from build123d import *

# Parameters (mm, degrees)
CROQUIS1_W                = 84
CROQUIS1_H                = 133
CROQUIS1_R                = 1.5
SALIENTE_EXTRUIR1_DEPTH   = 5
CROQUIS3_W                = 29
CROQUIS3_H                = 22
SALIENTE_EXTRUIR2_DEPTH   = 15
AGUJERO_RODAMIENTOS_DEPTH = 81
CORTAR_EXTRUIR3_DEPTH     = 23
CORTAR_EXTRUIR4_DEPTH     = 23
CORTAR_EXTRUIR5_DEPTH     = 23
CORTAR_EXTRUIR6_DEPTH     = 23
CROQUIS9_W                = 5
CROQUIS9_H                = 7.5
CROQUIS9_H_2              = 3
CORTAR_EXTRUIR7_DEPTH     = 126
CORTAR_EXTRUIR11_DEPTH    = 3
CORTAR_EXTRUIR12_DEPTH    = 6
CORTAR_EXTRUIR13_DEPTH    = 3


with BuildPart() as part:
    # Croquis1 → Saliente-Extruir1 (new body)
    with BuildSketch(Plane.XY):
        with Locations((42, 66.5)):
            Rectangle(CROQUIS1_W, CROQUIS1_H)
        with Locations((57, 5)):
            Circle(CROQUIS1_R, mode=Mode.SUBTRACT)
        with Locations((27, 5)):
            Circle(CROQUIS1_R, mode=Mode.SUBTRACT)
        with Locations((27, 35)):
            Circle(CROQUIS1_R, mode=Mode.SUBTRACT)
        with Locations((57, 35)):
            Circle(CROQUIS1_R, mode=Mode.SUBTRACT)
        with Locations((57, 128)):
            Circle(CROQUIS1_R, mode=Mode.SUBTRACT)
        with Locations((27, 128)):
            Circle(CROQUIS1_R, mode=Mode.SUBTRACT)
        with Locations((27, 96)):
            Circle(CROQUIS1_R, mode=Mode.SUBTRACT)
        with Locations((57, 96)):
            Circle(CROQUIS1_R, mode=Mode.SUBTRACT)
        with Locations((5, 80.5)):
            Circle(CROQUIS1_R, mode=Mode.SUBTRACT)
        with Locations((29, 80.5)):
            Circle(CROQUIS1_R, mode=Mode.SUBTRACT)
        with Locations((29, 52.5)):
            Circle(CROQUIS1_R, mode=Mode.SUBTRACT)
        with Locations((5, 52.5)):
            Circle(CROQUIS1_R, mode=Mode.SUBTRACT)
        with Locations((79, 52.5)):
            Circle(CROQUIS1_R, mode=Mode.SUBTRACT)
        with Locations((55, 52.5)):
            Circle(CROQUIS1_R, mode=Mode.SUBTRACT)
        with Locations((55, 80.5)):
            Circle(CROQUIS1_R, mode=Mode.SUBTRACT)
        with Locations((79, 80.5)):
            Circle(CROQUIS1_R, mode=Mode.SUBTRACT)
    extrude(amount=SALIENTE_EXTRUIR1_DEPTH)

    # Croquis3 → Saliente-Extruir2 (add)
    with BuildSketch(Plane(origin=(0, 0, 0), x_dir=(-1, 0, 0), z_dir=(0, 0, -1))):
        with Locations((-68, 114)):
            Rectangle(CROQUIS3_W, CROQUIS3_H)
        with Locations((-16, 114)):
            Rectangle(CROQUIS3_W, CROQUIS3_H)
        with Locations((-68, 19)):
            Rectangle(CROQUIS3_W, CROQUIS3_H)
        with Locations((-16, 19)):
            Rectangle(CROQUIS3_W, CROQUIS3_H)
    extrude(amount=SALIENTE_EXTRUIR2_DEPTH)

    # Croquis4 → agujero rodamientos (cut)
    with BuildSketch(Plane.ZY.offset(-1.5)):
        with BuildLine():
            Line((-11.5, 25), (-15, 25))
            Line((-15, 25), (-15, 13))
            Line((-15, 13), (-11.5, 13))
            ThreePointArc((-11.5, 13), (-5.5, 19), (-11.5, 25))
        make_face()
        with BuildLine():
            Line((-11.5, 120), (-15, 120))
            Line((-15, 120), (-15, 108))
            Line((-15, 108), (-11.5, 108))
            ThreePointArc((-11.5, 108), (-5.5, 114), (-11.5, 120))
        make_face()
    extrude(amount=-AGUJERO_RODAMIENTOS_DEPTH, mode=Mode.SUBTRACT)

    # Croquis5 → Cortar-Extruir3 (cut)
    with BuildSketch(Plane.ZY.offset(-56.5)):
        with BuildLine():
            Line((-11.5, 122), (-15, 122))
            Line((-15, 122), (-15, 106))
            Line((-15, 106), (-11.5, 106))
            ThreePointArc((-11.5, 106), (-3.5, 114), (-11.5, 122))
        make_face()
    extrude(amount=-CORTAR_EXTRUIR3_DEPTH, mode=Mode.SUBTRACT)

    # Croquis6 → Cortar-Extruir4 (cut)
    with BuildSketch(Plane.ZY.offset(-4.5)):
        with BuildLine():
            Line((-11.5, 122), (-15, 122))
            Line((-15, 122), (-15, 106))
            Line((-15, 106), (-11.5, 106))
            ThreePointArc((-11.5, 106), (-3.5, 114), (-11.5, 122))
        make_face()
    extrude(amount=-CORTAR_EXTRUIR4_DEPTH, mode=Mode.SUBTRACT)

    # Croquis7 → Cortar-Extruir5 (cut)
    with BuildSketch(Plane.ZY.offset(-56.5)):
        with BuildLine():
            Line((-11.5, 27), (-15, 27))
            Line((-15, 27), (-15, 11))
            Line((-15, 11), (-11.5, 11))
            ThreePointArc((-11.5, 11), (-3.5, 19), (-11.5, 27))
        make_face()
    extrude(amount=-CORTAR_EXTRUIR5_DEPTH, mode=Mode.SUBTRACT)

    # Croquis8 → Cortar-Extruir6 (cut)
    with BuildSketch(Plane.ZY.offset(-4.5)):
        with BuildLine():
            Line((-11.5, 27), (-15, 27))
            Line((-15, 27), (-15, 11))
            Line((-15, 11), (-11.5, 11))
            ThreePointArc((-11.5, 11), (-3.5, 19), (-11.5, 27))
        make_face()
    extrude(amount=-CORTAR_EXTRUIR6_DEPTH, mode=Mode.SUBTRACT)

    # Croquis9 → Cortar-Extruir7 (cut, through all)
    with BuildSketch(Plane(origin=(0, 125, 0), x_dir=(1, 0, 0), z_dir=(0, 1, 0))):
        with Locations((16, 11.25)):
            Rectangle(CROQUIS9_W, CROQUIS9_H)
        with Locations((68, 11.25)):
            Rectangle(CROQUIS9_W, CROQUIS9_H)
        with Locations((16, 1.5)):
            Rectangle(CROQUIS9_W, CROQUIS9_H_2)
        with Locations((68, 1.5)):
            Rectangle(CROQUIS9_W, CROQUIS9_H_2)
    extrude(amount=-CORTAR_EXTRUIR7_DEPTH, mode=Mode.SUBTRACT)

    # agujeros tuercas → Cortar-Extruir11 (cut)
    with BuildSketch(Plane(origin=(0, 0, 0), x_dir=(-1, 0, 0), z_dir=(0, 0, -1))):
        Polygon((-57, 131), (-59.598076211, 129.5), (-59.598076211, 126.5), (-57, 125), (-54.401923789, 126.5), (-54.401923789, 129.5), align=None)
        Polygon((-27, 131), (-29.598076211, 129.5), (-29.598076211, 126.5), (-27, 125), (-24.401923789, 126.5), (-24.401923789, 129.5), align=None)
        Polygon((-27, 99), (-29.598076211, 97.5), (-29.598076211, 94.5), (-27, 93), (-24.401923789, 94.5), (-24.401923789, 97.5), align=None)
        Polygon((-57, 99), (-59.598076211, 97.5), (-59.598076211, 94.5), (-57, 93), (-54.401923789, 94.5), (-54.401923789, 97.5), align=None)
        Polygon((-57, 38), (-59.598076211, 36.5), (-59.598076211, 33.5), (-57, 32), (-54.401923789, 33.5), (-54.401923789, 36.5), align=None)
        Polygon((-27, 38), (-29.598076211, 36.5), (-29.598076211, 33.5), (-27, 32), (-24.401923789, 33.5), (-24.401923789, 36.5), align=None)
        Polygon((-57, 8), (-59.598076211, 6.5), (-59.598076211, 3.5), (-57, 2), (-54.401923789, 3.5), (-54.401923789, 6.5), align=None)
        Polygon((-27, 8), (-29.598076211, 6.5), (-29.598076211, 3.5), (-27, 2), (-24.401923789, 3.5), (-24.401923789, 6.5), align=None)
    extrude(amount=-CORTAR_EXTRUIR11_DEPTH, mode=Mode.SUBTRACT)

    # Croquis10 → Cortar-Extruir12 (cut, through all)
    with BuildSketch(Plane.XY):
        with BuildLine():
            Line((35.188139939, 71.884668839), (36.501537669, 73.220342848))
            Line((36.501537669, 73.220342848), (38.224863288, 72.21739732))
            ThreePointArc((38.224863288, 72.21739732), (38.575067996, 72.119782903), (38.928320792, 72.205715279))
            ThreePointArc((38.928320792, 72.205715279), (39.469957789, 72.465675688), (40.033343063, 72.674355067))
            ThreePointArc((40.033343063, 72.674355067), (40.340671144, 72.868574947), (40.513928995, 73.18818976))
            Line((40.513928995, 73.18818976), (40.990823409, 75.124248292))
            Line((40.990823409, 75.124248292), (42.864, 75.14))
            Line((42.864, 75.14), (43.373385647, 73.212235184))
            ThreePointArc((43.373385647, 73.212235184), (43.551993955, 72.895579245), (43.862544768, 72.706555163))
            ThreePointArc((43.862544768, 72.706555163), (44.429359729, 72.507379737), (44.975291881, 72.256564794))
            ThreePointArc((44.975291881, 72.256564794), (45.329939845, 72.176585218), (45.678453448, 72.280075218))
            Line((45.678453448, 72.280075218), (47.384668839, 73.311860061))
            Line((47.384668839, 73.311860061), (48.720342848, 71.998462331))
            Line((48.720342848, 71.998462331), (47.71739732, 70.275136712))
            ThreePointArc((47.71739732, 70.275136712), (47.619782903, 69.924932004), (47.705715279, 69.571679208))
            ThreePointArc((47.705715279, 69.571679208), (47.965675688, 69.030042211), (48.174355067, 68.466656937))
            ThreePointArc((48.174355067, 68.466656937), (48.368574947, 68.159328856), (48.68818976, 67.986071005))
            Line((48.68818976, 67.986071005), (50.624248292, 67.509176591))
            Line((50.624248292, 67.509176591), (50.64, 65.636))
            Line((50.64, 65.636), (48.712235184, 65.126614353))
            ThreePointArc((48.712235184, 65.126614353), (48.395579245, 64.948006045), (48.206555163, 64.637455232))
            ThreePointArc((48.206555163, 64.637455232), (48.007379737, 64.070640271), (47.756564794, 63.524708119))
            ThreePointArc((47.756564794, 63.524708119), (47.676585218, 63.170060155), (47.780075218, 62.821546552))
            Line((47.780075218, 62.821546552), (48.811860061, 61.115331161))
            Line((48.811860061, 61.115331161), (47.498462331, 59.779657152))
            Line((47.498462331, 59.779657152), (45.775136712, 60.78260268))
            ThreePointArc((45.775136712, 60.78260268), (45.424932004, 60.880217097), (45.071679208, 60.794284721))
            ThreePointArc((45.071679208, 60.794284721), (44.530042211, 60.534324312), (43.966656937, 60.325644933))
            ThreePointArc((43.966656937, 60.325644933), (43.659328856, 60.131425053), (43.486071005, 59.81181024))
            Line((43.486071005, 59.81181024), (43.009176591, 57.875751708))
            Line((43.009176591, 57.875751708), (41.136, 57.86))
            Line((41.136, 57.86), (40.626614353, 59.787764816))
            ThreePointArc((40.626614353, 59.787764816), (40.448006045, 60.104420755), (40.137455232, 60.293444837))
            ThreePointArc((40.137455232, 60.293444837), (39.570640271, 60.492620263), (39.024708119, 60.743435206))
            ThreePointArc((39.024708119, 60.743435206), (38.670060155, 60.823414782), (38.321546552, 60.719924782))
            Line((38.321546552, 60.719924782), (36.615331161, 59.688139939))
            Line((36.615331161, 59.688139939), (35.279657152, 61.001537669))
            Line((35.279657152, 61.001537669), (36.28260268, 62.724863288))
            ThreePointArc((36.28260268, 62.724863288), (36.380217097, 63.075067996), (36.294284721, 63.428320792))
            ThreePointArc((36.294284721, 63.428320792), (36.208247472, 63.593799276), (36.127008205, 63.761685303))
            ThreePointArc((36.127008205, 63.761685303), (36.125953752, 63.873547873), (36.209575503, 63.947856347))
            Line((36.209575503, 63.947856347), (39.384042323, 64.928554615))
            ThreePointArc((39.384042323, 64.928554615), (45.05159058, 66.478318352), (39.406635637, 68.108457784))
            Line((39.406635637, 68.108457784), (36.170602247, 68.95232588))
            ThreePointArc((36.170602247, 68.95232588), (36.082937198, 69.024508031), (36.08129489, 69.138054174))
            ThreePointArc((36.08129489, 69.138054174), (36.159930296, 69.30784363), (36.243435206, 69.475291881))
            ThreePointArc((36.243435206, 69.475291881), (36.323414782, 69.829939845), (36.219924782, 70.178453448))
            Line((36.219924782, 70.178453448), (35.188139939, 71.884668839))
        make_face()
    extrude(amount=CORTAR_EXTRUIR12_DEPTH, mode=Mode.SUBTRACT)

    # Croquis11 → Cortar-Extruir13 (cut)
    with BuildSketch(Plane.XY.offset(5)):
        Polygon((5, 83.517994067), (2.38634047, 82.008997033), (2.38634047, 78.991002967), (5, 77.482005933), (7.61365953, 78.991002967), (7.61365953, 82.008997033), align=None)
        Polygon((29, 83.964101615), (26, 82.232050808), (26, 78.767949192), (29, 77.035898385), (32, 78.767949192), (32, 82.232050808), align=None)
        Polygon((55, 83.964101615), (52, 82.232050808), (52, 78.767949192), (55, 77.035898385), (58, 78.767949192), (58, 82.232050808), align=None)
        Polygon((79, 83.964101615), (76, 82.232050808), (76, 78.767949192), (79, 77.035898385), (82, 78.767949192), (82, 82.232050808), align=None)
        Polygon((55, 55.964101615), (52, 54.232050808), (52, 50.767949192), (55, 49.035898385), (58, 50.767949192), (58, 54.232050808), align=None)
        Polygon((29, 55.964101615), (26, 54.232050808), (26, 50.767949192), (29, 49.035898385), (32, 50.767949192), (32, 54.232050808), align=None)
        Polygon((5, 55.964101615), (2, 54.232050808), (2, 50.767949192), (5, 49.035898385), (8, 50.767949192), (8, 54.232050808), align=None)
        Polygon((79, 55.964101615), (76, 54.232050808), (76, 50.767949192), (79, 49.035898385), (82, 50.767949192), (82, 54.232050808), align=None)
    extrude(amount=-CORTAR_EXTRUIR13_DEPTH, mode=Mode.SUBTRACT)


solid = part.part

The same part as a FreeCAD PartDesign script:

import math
import FreeCAD as App
import Part
import Sketcher

V = App.Vector
Q = App.Units.Quantity


def add_polygon(sketch, points):
    """Adds a closed chain of lines whose ends are joined by coincident constraints."""
    first, n = sketch.GeometryCount, len(points)
    for a, b in zip(points, points[1:] + points[:1]):
        sketch.addGeometry(Part.LineSegment(App.Vector(*a, 0), App.Vector(*b, 0)), False)
    for i in range(n):
        sketch.addConstraint(Sketcher.Constraint("Coincident", first + i, 2, first + (i + 1) % n, 1))

doc = App.newDocument("Part")
body = doc.addObject("PartDesign::Body", "Body")

sketch1 = body.newObject("Sketcher::SketchObject", "Sketch")
sketch1.AttachmentSupport = (doc.getObject("XY_Plane"), [""])
sketch1.MapMode = "FlatFace"
add_polygon(sketch1, [(0, 133), (0, 0), (84, 0), (84, 133)])
sketch1.addGeometry(Part.Circle(V(27, 5, 0), V(0, 0, 1), 1.5), False)
sketch1.addGeometry(Part.Circle(V(5, 52.5, 0), V(0, 0, 1), 1.5), False)
sketch1.addGeometry(Part.Circle(V(27, 35, 0), V(0, 0, 1), 1.5), False)
sketch1.addGeometry(Part.Circle(V(29, 52.5, 0), V(0, 0, 1), 1.5), False)
sketch1.addGeometry(Part.Circle(V(57, 5, 0), V(0, 0, 1), 1.5), False)
sketch1.addGeometry(Part.Circle(V(57, 35, 0), V(0, 0, 1), 1.5), False)
sketch1.addGeometry(Part.Circle(V(55, 52.5, 0), V(0, 0, 1), 1.5), False)
sketch1.addGeometry(Part.Circle(V(79, 52.5, 0), V(0, 0, 1), 1.5), False)
sketch1.addGeometry(Part.Circle(V(5, 80.5, 0), V(0, 0, 1), 1.5), False)
sketch1.addGeometry(Part.Circle(V(29, 80.5, 0), V(0, 0, 1), 1.5), False)
sketch1.addGeometry(Part.Circle(V(27, 96, 0), V(0, 0, 1), 1.5), False)
sketch1.addGeometry(Part.Circle(V(27, 128, 0), V(0, 0, 1), 1.5), False)
sketch1.addGeometry(Part.Circle(V(55, 80.5, 0), V(0, 0, 1), 1.5), False)
sketch1.addGeometry(Part.Circle(V(57, 96, 0), V(0, 0, 1), 1.5), False)
sketch1.addGeometry(Part.Circle(V(79, 80.5, 0), V(0, 0, 1), 1.5), False)
sketch1.addGeometry(Part.Circle(V(57, 128, 0), V(0, 0, 1), 1.5), False)
sketch1.addConstraint([
    Sketcher.Constraint("Vertical", 0),
    Sketcher.Constraint("Horizontal", 1),
    Sketcher.Constraint("Vertical", 2),
    Sketcher.Constraint("Horizontal", 3),
    Sketcher.Constraint("Coincident", 0, 2, -1, 1),
    Sketcher.Constraint("Equal", 4, 5),
    Sketcher.Constraint("Equal", 5, 6),
    Sketcher.Constraint("Equal", 6, 7),
    Sketcher.Constraint("Equal", 7, 8),
    Sketcher.Constraint("Equal", 8, 9),
    Sketcher.Constraint("Equal", 9, 10),
    Sketcher.Constraint("Equal", 10, 11),
    Sketcher.Constraint("Equal", 11, 12),
    Sketcher.Constraint("Equal", 12, 13),
    Sketcher.Constraint("Equal", 13, 14),
    Sketcher.Constraint("Equal", 14, 15),
    Sketcher.Constraint("Equal", 15, 16),
    Sketcher.Constraint("Equal", 16, 17),
    Sketcher.Constraint("Equal", 17, 18),
    Sketcher.Constraint("Equal", 18, 19),
    Sketcher.Constraint("Horizontal", 5, 3, 7, 3),
    Sketcher.Constraint("Horizontal", 4, 3, 8, 3),
    Sketcher.Constraint("Horizontal", 6, 3, 9, 3),
    Sketcher.Constraint("Horizontal", 7, 3, 10, 3),
    Sketcher.Constraint("Horizontal", 10, 3, 11, 3),
    Sketcher.Constraint("Horizontal", 12, 3, 13, 3),
    Sketcher.Constraint("Horizontal", 13, 3, 16, 3),
    Sketcher.Constraint("Horizontal", 14, 3, 17, 3),
    Sketcher.Constraint("Horizontal", 16, 3, 18, 3),
    Sketcher.Constraint("Horizontal", 15, 3, 19, 3),
    Sketcher.Constraint("Vertical", 4, 3, 6, 3),
    Sketcher.Constraint("Vertical", 8, 3, 9, 3),
    Sketcher.Constraint("Vertical", 5, 3, 12, 3),
    Sketcher.Constraint("Vertical", 7, 3, 13, 3),
    Sketcher.Constraint("Vertical", 6, 3, 14, 3),
    Sketcher.Constraint("Vertical", 14, 3, 15, 3),
    Sketcher.Constraint("Vertical", 10, 3, 16, 3),
    Sketcher.Constraint("Vertical", 9, 3, 17, 3),
    Sketcher.Constraint("Vertical", 11, 3, 18, 3),
    Sketcher.Constraint("Vertical", 17, 3, 19, 3),
    Sketcher.Constraint("Diameter", 4, Q("3 mm")),
    Sketcher.Constraint("DistanceX", 1, 1, 1, 2, Q("84 mm")),
    Sketcher.Constraint("DistanceY", 0, 2, 0, 1, Q("133 mm")),
    Sketcher.Constraint("DistanceX", -1, 1, 4, 3, Q("27 mm")),
    Sketcher.Constraint("DistanceY", -1, 1, 4, 3, Q("5 mm")),
    Sketcher.Constraint("DistanceX", -1, 1, 5, 3, Q("5 mm")),
    Sketcher.Constraint("DistanceY", -1, 1, 6, 3, Q("35 mm")),
    Sketcher.Constraint("DistanceX", -1, 1, 7, 3, Q("29 mm")),
    Sketcher.Constraint("DistanceX", -1, 1, 8, 3, Q("57 mm")),
    Sketcher.Constraint("DistanceX", -1, 1, 10, 3, Q("55 mm")),
    Sketcher.Constraint("DistanceX", -1, 1, 11, 3, Q("79 mm")),
    Sketcher.Constraint("DistanceY", -1, 1, 14, 3, Q("96 mm")),
    Sketcher.Constraint("DistanceY", -1, 1, 15, 3, Q("128 mm")),
    Sketcher.Constraint("DistanceY", 5, 3, 12, 3, Q("28 mm")),
    Sketcher.Constraint("DistanceY", -1, 1, 5, 3, Q("52.5 mm")),
])
pad1 = body.newObject("PartDesign::Pad", "Pad")
pad1.Profile = sketch1
pad1.Length = 5

sketch2 = body.newObject("Sketcher::SketchObject", "Sketch001")
sketch2.AttachmentSupport = (doc.getObject("XY_Plane"), [""])
sketch2.MapMode = "FlatFace"
add_polygon(sketch2, [(82.5, 125), (82.5, 103), (53.5, 103), (53.5, 125)])
add_polygon(sketch2, [(30.5, 125), (30.5, 103), (1.5, 103), (1.5, 125)])
add_polygon(sketch2, [(82.5, 30), (82.5, 8), (53.5, 8), (53.5, 30)])
add_polygon(sketch2, [(30.5, 30), (30.5, 8), (1.5, 8), (1.5, 30)])
sketch2.addConstraint([
    Sketcher.Constraint("Vertical", 0),
    Sketcher.Constraint("Horizontal", 1),
    Sketcher.Constraint("Vertical", 2),
    Sketcher.Constraint("Horizontal", 3),
    Sketcher.Constraint("Vertical", 4),
    Sketcher.Constraint("Horizontal", 5),
    Sketcher.Constraint("Vertical", 6),
    Sketcher.Constraint("Horizontal", 7),
    Sketcher.Constraint("Vertical", 8),
    Sketcher.Constraint("Horizontal", 9),
    Sketcher.Constraint("Vertical", 10),
    Sketcher.Constraint("Horizontal", 11),
    Sketcher.Constraint("Vertical", 12),
    Sketcher.Constraint("Horizontal", 13),
    Sketcher.Constraint("Vertical", 14),
    Sketcher.Constraint("Horizontal", 15),
    Sketcher.Constraint("Horizontal", 1, 2, 4, 2),
    Sketcher.Constraint("Horizontal", 3, 2, 6, 2),
    Sketcher.Constraint("Horizontal", 9, 2, 12, 2),
    Sketcher.Constraint("Horizontal", 11, 2, 14, 2),
    Sketcher.Constraint("Vertical", 3, 2, 8, 2),
    Sketcher.Constraint("Vertical", 2, 2, 9, 2),
    Sketcher.Constraint("Vertical", 7, 2, 12, 2),
    Sketcher.Constraint("Vertical", 6, 2, 13, 2),
    Sketcher.Constraint("Equal", 3, 5),
    Sketcher.Constraint("Equal", 6, 8),
    Sketcher.Constraint("DistanceX", 1, 2, 1, 1, Q("29 mm")),
    Sketcher.Constraint("DistanceY", 0, 2, 0, 1, Q("22 mm")),
    Sketcher.Constraint("DistanceY", -1, 1, 0, 2, Q("103 mm")),
    Sketcher.Constraint("DistanceY", -1, 1, 8, 2, Q("8 mm")),
    Sketcher.Constraint("DistanceX", 4, 2, 1, 2, Q("23 mm")),
    Sketcher.Constraint("DistanceX", -1, 1, 0, 2, Q("82.5 mm")),
])
pad2 = body.newObject("PartDesign::Pad", "Pad001")
pad2.Profile = sketch2
pad2.Length = 15
pad2.Reversed = True

sketch3 = body.newObject("Sketcher::SketchObject", "Sketch002")
sketch3.AttachmentSupport = (doc.getObject("YZ_Plane"), [""])
sketch3.MapMode = "FlatFace"
sketch3.AttachmentOffset = App.Placement(V(0, 0, 1.5), App.Rotation())
sketch3.addGeometry([
    Part.LineSegment(V(25, -11.5, 0), V(25, -15, 0)),
    Part.LineSegment(V(25, -15, 0), V(13, -15, 0)),
    Part.LineSegment(V(13, -15, 0), V(13, -11.5, 0)),
    Part.ArcOfCircle(Part.Circle(V(19, -11.5, 0), V(0, 0, 1), 6), math.radians(0), math.radians(180)),
    Part.LineSegment(V(120, -11.5, 0), V(120, -15, 0)),
    Part.LineSegment(V(120, -15, 0), V(108, -15, 0)),
    Part.LineSegment(V(108, -15, 0), V(108, -11.5, 0)),
    Part.ArcOfCircle(Part.Circle(V(114, -11.5, 0), V(0, 0, 1), 6), math.radians(0), math.radians(180)),
], False)
sketch3.addConstraint([
    Sketcher.Constraint("Coincident", 0, 2, 1, 1),
    Sketcher.Constraint("Coincident", 1, 2, 2, 1),
    Sketcher.Constraint("Tangent", 2, 2, 3, 2),
    Sketcher.Constraint("Tangent", 3, 1, 0, 1),
    Sketcher.Constraint("Coincident", 4, 2, 5, 1),
    Sketcher.Constraint("Coincident", 5, 2, 6, 1),
    Sketcher.Constraint("Tangent", 6, 2, 7, 2),
    Sketcher.Constraint("Tangent", 7, 1, 4, 1),
    Sketcher.Constraint("Vertical", 0),
    Sketcher.Constraint("Horizontal", 1),
    Sketcher.Constraint("Vertical", 2),
    Sketcher.Constraint("Vertical", 4),
    Sketcher.Constraint("Horizontal", 5),
    Sketcher.Constraint("Vertical", 6),
    Sketcher.Constraint("Equal", 3, 7),
    Sketcher.Constraint("Horizontal", 3, 3, 7, 3),
    Sketcher.Constraint("Horizontal", 1, 2, 4, 2),
    Sketcher.Constraint("Radius", 3, Q("6 mm")),
    Sketcher.Constraint("DistanceY", 0, 2, 0, 1, Q("3.5 mm")),
    Sketcher.Constraint("DistanceX", -1, 1, 3, 3, Q("19 mm")),
    Sketcher.Constraint("DistanceX", -1, 1, 7, 3, Q("114 mm")),
    Sketcher.Constraint("DistanceY", 0, 2, -1, 1, Q("15 mm")),
])
pocket1 = body.newObject("PartDesign::Pocket", "Pocket")
pocket1.Profile = sketch3
pocket1.Length = 81
pocket1.Reversed = True

sketch4 = body.newObject("Sketcher::SketchObject", "Sketch003")
sketch4.AttachmentSupport = (doc.getObject("YZ_Plane"), [""])
sketch4.MapMode = "FlatFace"
sketch4.AttachmentOffset = App.Placement(V(0, 0, 56.5), App.Rotation())
sketch4.addGeometry([
    Part.LineSegment(V(122, -11.5, 0), V(122, -15, 0)),
    Part.LineSegment(V(122, -15, 0), V(106, -15, 0)),
    Part.LineSegment(V(106, -15, 0), V(106, -11.5, 0)),
    Part.ArcOfCircle(Part.Circle(V(114, -11.5, 0), V(0, 0, 1), 8), math.radians(0), math.radians(180)),
], False)
sketch4.addConstraint([
    Sketcher.Constraint("Coincident", 0, 2, 1, 1),
    Sketcher.Constraint("Coincident", 1, 2, 2, 1),
    Sketcher.Constraint("Tangent", 2, 2, 3, 2),
    Sketcher.Constraint("Tangent", 3, 1, 0, 1),
    Sketcher.Constraint("Vertical", 0),
    Sketcher.Constraint("Horizontal", 1),
    Sketcher.Constraint("Vertical", 2),
    Sketcher.Constraint("Radius", 3, Q("8 mm")),
    Sketcher.Constraint("DistanceY", 0, 2, 0, 1, Q("3.5 mm")),
    Sketcher.Constraint("DistanceX", -1, 1, 3, 3, Q("114 mm")),
    Sketcher.Constraint("DistanceY", 0, 2, -1, 1, Q("15 mm")),
])
pocket2 = body.newObject("PartDesign::Pocket", "Pocket001")
pocket2.Profile = sketch4
pocket2.Length = 23
pocket2.Reversed = True

sketch5 = body.newObject("Sketcher::SketchObject", "Sketch004")
sketch5.AttachmentSupport = (doc.getObject("YZ_Plane"), [""])
sketch5.MapMode = "FlatFace"
sketch5.AttachmentOffset = App.Placement(V(0, 0, 4.5), App.Rotation())
sketch5.addGeometry([
    Part.LineSegment(V(122, -11.5, 0), V(122, -15, 0)),
    Part.LineSegment(V(122, -15, 0), V(106, -15, 0)),
    Part.LineSegment(V(106, -15, 0), V(106, -11.5, 0)),
    Part.ArcOfCircle(Part.Circle(V(114, -11.5, 0), V(0, 0, 1), 8), math.radians(0), math.radians(180)),
], False)
sketch5.addConstraint([
    Sketcher.Constraint("Coincident", 0, 2, 1, 1),
    Sketcher.Constraint("Coincident", 1, 2, 2, 1),
    Sketcher.Constraint("Tangent", 2, 2, 3, 2),
    Sketcher.Constraint("Tangent", 3, 1, 0, 1),
    Sketcher.Constraint("Vertical", 0),
    Sketcher.Constraint("Horizontal", 1),
    Sketcher.Constraint("Vertical", 2),
    Sketcher.Constraint("Radius", 3, Q("8 mm")),
    Sketcher.Constraint("DistanceY", 0, 2, 0, 1, Q("3.5 mm")),
    Sketcher.Constraint("DistanceX", -1, 1, 3, 3, Q("114 mm")),
    Sketcher.Constraint("DistanceY", 0, 2, -1, 1, Q("15 mm")),
])
pocket3 = body.newObject("PartDesign::Pocket", "Pocket002")
pocket3.Profile = sketch5
pocket3.Length = 23
pocket3.Reversed = True

sketch6 = body.newObject("Sketcher::SketchObject", "Sketch005")
sketch6.AttachmentSupport = (doc.getObject("YZ_Plane"), [""])
sketch6.MapMode = "FlatFace"
sketch6.AttachmentOffset = App.Placement(V(0, 0, 56.5), App.Rotation())
sketch6.addGeometry([
    Part.LineSegment(V(27, -11.5, 0), V(27, -15, 0)),
    Part.LineSegment(V(27, -15, 0), V(11, -15, 0)),
    Part.LineSegment(V(11, -15, 0), V(11, -11.5, 0)),
    Part.ArcOfCircle(Part.Circle(V(19, -11.5, 0), V(0, 0, 1), 8), math.radians(0), math.radians(180)),
], False)
sketch6.addConstraint([
    Sketcher.Constraint("Coincident", 0, 2, 1, 1),
    Sketcher.Constraint("Coincident", 1, 2, 2, 1),
    Sketcher.Constraint("Tangent", 2, 2, 3, 2),
    Sketcher.Constraint("Tangent", 3, 1, 0, 1),
    Sketcher.Constraint("Vertical", 0),
    Sketcher.Constraint("Horizontal", 1),
    Sketcher.Constraint("Vertical", 2),
    Sketcher.Constraint("Radius", 3, Q("8 mm")),
    Sketcher.Constraint("DistanceY", 0, 2, 0, 1, Q("3.5 mm")),
    Sketcher.Constraint("DistanceX", -1, 1, 3, 3, Q("19 mm")),
    Sketcher.Constraint("DistanceY", 0, 2, -1, 1, Q("15 mm")),
])
pocket4 = body.newObject("PartDesign::Pocket", "Pocket003")
pocket4.Profile = sketch6
pocket4.Length = 23
pocket4.Reversed = True

sketch7 = body.newObject("Sketcher::SketchObject", "Sketch006")
sketch7.AttachmentSupport = (doc.getObject("YZ_Plane"), [""])
sketch7.MapMode = "FlatFace"
sketch7.AttachmentOffset = App.Placement(V(0, 0, 4.5), App.Rotation())
sketch7.addGeometry([
    Part.LineSegment(V(27, -11.5, 0), V(27, -15, 0)),
    Part.LineSegment(V(27, -15, 0), V(11, -15, 0)),
    Part.LineSegment(V(11, -15, 0), V(11, -11.5, 0)),
    Part.ArcOfCircle(Part.Circle(V(19, -11.5, 0), V(0, 0, 1), 8), math.radians(0), math.radians(180)),
], False)
sketch7.addConstraint([
    Sketcher.Constraint("Coincident", 0, 2, 1, 1),
    Sketcher.Constraint("Coincident", 1, 2, 2, 1),
    Sketcher.Constraint("Tangent", 2, 2, 3, 2),
    Sketcher.Constraint("Tangent", 3, 1, 0, 1),
    Sketcher.Constraint("Vertical", 0),
    Sketcher.Constraint("Horizontal", 1),
    Sketcher.Constraint("Vertical", 2),
    Sketcher.Constraint("Radius", 3, Q("8 mm")),
    Sketcher.Constraint("DistanceY", 0, 2, 0, 1, Q("3.5 mm")),
    Sketcher.Constraint("DistanceX", -1, 1, 3, 3, Q("19 mm")),
    Sketcher.Constraint("DistanceY", 0, 2, -1, 1, Q("15 mm")),
])
pocket5 = body.newObject("PartDesign::Pocket", "Pocket004")
pocket5.Profile = sketch7
pocket5.Length = 23
pocket5.Reversed = True

sketch8 = body.newObject("Sketcher::SketchObject", "Sketch007")
sketch8.AttachmentSupport = (doc.getObject("XZ_Plane"), [""])
sketch8.MapMode = "FlatFace"
sketch8.AttachmentOffset = App.Placement(V(0, 0, -125), App.Rotation())
add_polygon(sketch8, [(13.5, -15), (13.5, -7.5), (18.5, -7.5), (18.5, -15)])
add_polygon(sketch8, [(65.5, -15), (65.5, -7.5), (70.5, -7.5), (70.5, -15)])
add_polygon(sketch8, [(13.5, -3), (13.5, 0), (18.5, 0), (18.5, -3)])
add_polygon(sketch8, [(65.5, -3), (65.5, 0), (70.5, 0), (70.5, -3)])
sketch8.addConstraint([
    Sketcher.Constraint("Vertical", 0),
    Sketcher.Constraint("Horizontal", 1),
    Sketcher.Constraint("Vertical", 2),
    Sketcher.Constraint("Horizontal", 3),
    Sketcher.Constraint("Vertical", 4),
    Sketcher.Constraint("Horizontal", 5),
    Sketcher.Constraint("Vertical", 6),
    Sketcher.Constraint("Horizontal", 7),
    Sketcher.Constraint("Vertical", 8),
    Sketcher.Constraint("Horizontal", 9),
    Sketcher.Constraint("Vertical", 10),
    Sketcher.Constraint("Horizontal", 11),
    Sketcher.Constraint("Vertical", 12),
    Sketcher.Constraint("Horizontal", 13),
    Sketcher.Constraint("Vertical", 14),
    Sketcher.Constraint("Horizontal", 15),
    Sketcher.Constraint("PointOnObject", 8, 2, -1),
    Sketcher.Constraint("PointOnObject", 12, 2, -1),
    Sketcher.Constraint("Horizontal", 1, 2, 4, 2),
    Sketcher.Constraint("Horizontal", 3, 2, 6, 2),
    Sketcher.Constraint("Horizontal", 11, 2, 14, 2),
    Sketcher.Constraint("Vertical", 3, 2, 8, 2),
    Sketcher.Constraint("Vertical", 2, 2, 9, 2),
    Sketcher.Constraint("Vertical", 7, 2, 12, 2),
    Sketcher.Constraint("Vertical", 6, 2, 13, 2),
    Sketcher.Constraint("Equal", 3, 5),
    Sketcher.Constraint("DistanceX", 1, 1, 1, 2, Q("5 mm")),
    Sketcher.Constraint("DistanceY", 8, 1, 8, 2, Q("3 mm")),
    Sketcher.Constraint("DistanceY", 0, 1, 0, 2, Q("7.5 mm")),
    Sketcher.Constraint("DistanceY", 2, 2, -1, 1, Q("15 mm")),
    Sketcher.Constraint("DistanceX", 1, 2, 4, 2, Q("47 mm")),
    Sketcher.Constraint("DistanceX", -1, 1, 0, 2, Q("13.5 mm")),
])
pocket6 = body.newObject("PartDesign::Pocket", "Pocket005")
pocket6.Profile = sketch8
pocket6.Type = "ThroughAll"
pocket6.Reversed = True

sketch9 = body.newObject("Sketcher::SketchObject", "Sketch008")
sketch9.AttachmentSupport = (doc.getObject("XY_Plane"), [""])
sketch9.MapMode = "FlatFace"
add_polygon(sketch9, [(57, 131), (59.598076, 129.5), (59.598076, 126.5), (57, 125), (54.401924, 126.5), (54.401924, 129.5)])
add_polygon(sketch9, [(27, 131), (29.598076, 129.5), (29.598076, 126.5), (27, 125), (24.401924, 126.5), (24.401924, 129.5)])
add_polygon(sketch9, [(27, 99), (29.598076, 97.5), (29.598076, 94.5), (27, 93), (24.401924, 94.5), (24.401924, 97.5)])
add_polygon(sketch9, [(57, 99), (59.598076, 97.5), (59.598076, 94.5), (57, 93), (54.401924, 94.5), (54.401924, 97.5)])
add_polygon(sketch9, [(57, 38), (59.598076, 36.5), (59.598076, 33.5), (57, 32), (54.401924, 33.5), (54.401924, 36.5)])
add_polygon(sketch9, [(27, 38), (29.598076, 36.5), (29.598076, 33.5), (27, 32), (24.401924, 33.5), (24.401924, 36.5)])
add_polygon(sketch9, [(57, 8), (59.598076, 6.5), (59.598076, 3.5), (57, 2), (54.401924, 3.5), (54.401924, 6.5)])
add_polygon(sketch9, [(27, 8), (29.598076, 6.5), (29.598076, 3.5), (27, 2), (24.401924, 3.5), (24.401924, 6.5)])
sketch9.addConstraint([
    Sketcher.Constraint("Vertical", 1),
    Sketcher.Constraint("Vertical", 4),
    Sketcher.Constraint("Vertical", 7),
    Sketcher.Constraint("Vertical", 10),
    Sketcher.Constraint("Vertical", 13),
    Sketcher.Constraint("Vertical", 16),
    Sketcher.Constraint("Vertical", 19),
    Sketcher.Constraint("Vertical", 22),
    Sketcher.Constraint("Vertical", 25),
    Sketcher.Constraint("Vertical", 28),
    Sketcher.Constraint("Vertical", 31),
    Sketcher.Constraint("Vertical", 34),
    Sketcher.Constraint("Vertical", 37),
    Sketcher.Constraint("Vertical", 40),
    Sketcher.Constraint("Vertical", 43),
    Sketcher.Constraint("Vertical", 46),
    Sketcher.Constraint("Parallel", 0, 3),
    Sketcher.Constraint("Parallel", 2, 5),
    Sketcher.Constraint("Parallel", 3, 6),
    Sketcher.Constraint("Parallel", 5, 8),
    Sketcher.Constraint("Parallel", 6, 9),
    Sketcher.Constraint("Parallel", 8, 11),
    Sketcher.Constraint("Parallel", 9, 12),
    Sketcher.Constraint("Parallel", 11, 14),
    Sketcher.Constraint("Parallel", 12, 15),
    Sketcher.Constraint("Parallel", 14, 17),
    Sketcher.Constraint("Parallel", 15, 18),
    Sketcher.Constraint("Parallel", 17, 20),
    Sketcher.Constraint("Parallel", 18, 21),
    Sketcher.Constraint("Parallel", 20, 23),
    Sketcher.Constraint("Parallel", 21, 24),
    Sketcher.Constraint("Parallel", 23, 26),
    Sketcher.Constraint("Parallel", 24, 27),
    Sketcher.Constraint("Parallel", 26, 29),
    Sketcher.Constraint("Parallel", 27, 30),
    Sketcher.Constraint("Parallel", 29, 32),
    Sketcher.Constraint("Parallel", 30, 33),
    Sketcher.Constraint("Parallel", 32, 35),
    Sketcher.Constraint("Parallel", 33, 36),
    Sketcher.Constraint("Parallel", 35, 38),
    Sketcher.Constraint("Parallel", 36, 39),
    Sketcher.Constraint("Parallel", 38, 41),
    Sketcher.Constraint("Parallel", 39, 42),
    Sketcher.Constraint("Parallel", 41, 44),
    Sketcher.Constraint("Parallel", 42, 45),
    Sketcher.Constraint("Parallel", 44, 47),
    Sketcher.Constraint("Horizontal", 1, 2, 3, 2),
    Sketcher.Constraint("Horizontal", 0, 2, 4, 2),
    Sketcher.Constraint("Horizontal", 4, 2, 6, 2),
    Sketcher.Constraint("Horizontal", 3, 2, 7, 2),
    Sketcher.Constraint("Horizontal", 2, 2, 8, 2),
    Sketcher.Constraint("Horizontal", 7, 2, 9, 2),
    Sketcher.Constraint("Horizontal", 6, 2, 10, 2),
    Sketcher.Constraint("Horizontal", 13, 2, 15, 2),
    Sketcher.Constraint("Horizontal", 12, 2, 16, 2),
    Sketcher.Constraint("Horizontal", 16, 2, 18, 2),
    Sketcher.Constraint("Horizontal", 15, 2, 19, 2),
    Sketcher.Constraint("Horizontal", 14, 2, 20, 2),
    Sketcher.Constraint("Horizontal", 19, 2, 21, 2),
    Sketcher.Constraint("Horizontal", 18, 2, 22, 2),
    Sketcher.Constraint("Horizontal", 25, 2, 27, 2),
    Sketcher.Constraint("Horizontal", 24, 2, 28, 2),
    Sketcher.Constraint("Horizontal", 28, 2, 30, 2),
    Sketcher.Constraint("Horizontal", 27, 2, 31, 2),
    Sketcher.Constraint("Horizontal", 26, 2, 32, 2),
    Sketcher.Constraint("Horizontal", 31, 2, 33, 2),
    Sketcher.Constraint("Horizontal", 30, 2, 34, 2),
    Sketcher.Constraint("Horizontal", 37, 2, 39, 2),
    Sketcher.Constraint("Horizontal", 36, 2, 40, 2),
    Sketcher.Constraint("Horizontal", 40, 2, 42, 2),
    Sketcher.Constraint("Horizontal", 39, 2, 43, 2),
    Sketcher.Constraint("Horizontal", 38, 2, 44, 2),
    Sketcher.Constraint("Horizontal", 43, 2, 45, 2),
    Sketcher.Constraint("Horizontal", 42, 2, 46, 2),
    Sketcher.Constraint("Vertical", 2, 2, 5, 2),
    Sketcher.Constraint("Vertical", 7, 2, 12, 2),
    Sketcher.Constraint("Vertical", 11, 2, 14, 2),
    Sketcher.Constraint("Vertical", 1, 2, 18, 2),
    Sketcher.Constraint("Vertical", 19, 2, 24, 2),
    Sketcher.Constraint("Vertical", 23, 2, 26, 2),
    Sketcher.Constraint("Vertical", 13, 2, 30, 2),
    Sketcher.Constraint("Vertical", 25, 2, 36, 2),
    Sketcher.Constraint("Vertical", 29, 2, 38, 2),
    Sketcher.Constraint("Vertical", 31, 2, 42, 2),
    Sketcher.Constraint("Equal", 10, 13),
    Sketcher.Constraint("Equal", 22, 25),
    Sketcher.Constraint("Equal", 34, 37),
    Sketcher.Constraint("DistanceY", 1, 2, 1, 1, Q("3 mm")),
    Sketcher.Constraint("Angle", 0, Q("-30 deg")),
    Sketcher.Constraint("Distance", 0, Q("3 mm")),
    Sketcher.Constraint("DistanceX", -1, 1, 2, 2, Q("57 mm")),
    Sketcher.Constraint("DistanceY", -1, 1, 2, 2, Q("125 mm")),
    Sketcher.Constraint("DistanceX", -1, 1, 8, 2, Q("27 mm")),
    Sketcher.Constraint("DistanceY", -1, 1, 14, 2, Q("93 mm")),
    Sketcher.Constraint("DistanceY", -1, 1, 26, 2, Q("32 mm")),
    Sketcher.Constraint("DistanceY", -1, 1, 38, 2, Q("2 mm")),
])
pocket7 = body.newObject("PartDesign::Pocket", "Pocket006")
pocket7.Profile = sketch9
pocket7.Length = 3
pocket7.Reversed = True

sketch10 = body.newObject("Sketcher::SketchObject", "Sketch009")
sketch10.AttachmentSupport = (doc.getObject("XY_Plane"), [""])
sketch10.MapMode = "FlatFace"
sketch10.addGeometry([
    Part.LineSegment(V(36.501538, 73.220343, 0), V(35.18814, 71.884669, 0)),
    Part.LineSegment(V(35.18814, 71.884669, 0), V(36.219925, 70.178453, 0)),
    Part.ArcOfCircle(Part.Circle(V(35.603817, 69.80588, 0), V(0, 0, 1), 0.72), math.radians(-27.332271), math.radians(31.162248)),
    Part.ArcOfCircle(Part.Circle(V(42.000001, 66.499999, 0), V(0, 0, 1), 6.480001), math.radians(152.667729), math.radians(155.976762)),
    Part.ArcOfCircle(Part.Circle(V(36.204693, 69.083054, 0), V(0, 0, 1), 0.1351), math.radians(155.976762), math.radians(255.38434)),
    Part.LineSegment(V(36.170602, 68.952326, 0), V(39.406636, 68.108458, 0)),
    Part.ArcOfCircle(Part.Circle(V(42, 66.5, 0), V(0, 0, 1), 3.051668), math.radians(-149.006125), math.radians(148.191962)),
    Part.LineSegment(V(39.384042, 64.928555, 0), V(36.209576, 63.947856, 0)),
    Part.ArcOfCircle(Part.Circle(V(36.249453, 63.818776, 0), V(0, 0, 1), 0.1351), math.radians(107.167656), math.radians(204.997545)),
    Part.ArcOfCircle(Part.Circle(V(42.000002, 66.500001, 0), V(0, 0, 1), 6.480002), math.radians(-155.002455), math.radians(-151.704142)),
    Part.ArcOfCircle(Part.Circle(V(35.660316, 63.087023, 0), V(0, 0, 1), 0.72), math.radians(-30.198661), math.radians(28.295859)),
    Part.LineSegment(V(36.282603, 62.724863, 0), V(35.279657, 61.001538, 0)),
    Part.LineSegment(V(35.279657, 61.001538, 0), V(36.615331, 59.68814, 0)),
    Part.LineSegment(V(36.615331, 59.68814, 0), V(38.321547, 60.719925, 0)),
    Part.ArcOfCircle(Part.Circle(V(38.69412, 60.103817, 0), V(0, 0, 1), 0.72), math.radians(62.667729), math.radians(121.162248)),
    Part.ArcOfCircle(Part.Circle(V(42, 66.5, 0), V(0, 0, 1), 6.48), math.radians(-117.332271), math.radians(-106.704141)),
    Part.ArcOfCircle(Part.Circle(V(39.930506, 59.603828, 0), V(0, 0, 1), 0.72), math.radians(14.801339), math.radians(73.295859)),
    Part.LineSegment(V(40.626614, 59.787765, 0), V(41.136, 57.86, 0)),
    Part.LineSegment(V(41.136, 57.86, 0), V(43.009177, 57.875752, 0)),
    Part.LineSegment(V(43.009177, 57.875752, 0), V(43.486071, 59.81181, 0)),
    Part.ArcOfCircle(Part.Circle(V(44.185174, 59.639605, 0), V(0, 0, 1), 0.72), math.radians(107.667729), math.radians(166.162248)),
    Part.ArcOfCircle(Part.Circle(V(42, 66.5, 0), V(0, 0, 1), 6.48), math.radians(-72.332271), math.radians(-61.704141)),
    Part.ArcOfCircle(Part.Circle(V(45.412977, 60.160316, 0), V(0, 0, 1), 0.72), math.radians(59.801339), math.radians(118.295859)),
    Part.LineSegment(V(45.775137, 60.782603, 0), V(47.498462, 59.779657, 0)),
    Part.LineSegment(V(47.498462, 59.779657, 0), V(48.81186, 61.115331, 0)),
    Part.LineSegment(V(48.81186, 61.115331, 0), V(47.780075, 62.821547, 0)),
    Part.ArcOfCircle(Part.Circle(V(48.396183, 63.19412, 0), V(0, 0, 1), 0.72), math.radians(152.667729), math.radians(211.162248)),
    Part.ArcOfCircle(Part.Circle(V(42, 66.5, 0), V(0, 0, 1), 6.48), math.radians(-27.332271), math.radians(-16.704141)),
    Part.ArcOfCircle(Part.Circle(V(48.896172, 64.430506, 0), V(0, 0, 1), 0.72), math.radians(104.801339), math.radians(163.295859)),
    Part.LineSegment(V(48.712235, 65.126614, 0), V(50.64, 65.636, 0)),
    Part.LineSegment(V(50.64, 65.636, 0), V(50.624248, 67.509177, 0)),
    Part.LineSegment(V(50.624248, 67.509177, 0), V(48.68819, 67.986071, 0)),
    Part.ArcOfCircle(Part.Circle(V(48.860395, 68.685174, 0), V(0, 0, 1), 0.72), math.radians(-162.332271), math.radians(-103.837752)),
    Part.ArcOfCircle(Part.Circle(V(42, 66.5, 0), V(0, 0, 1), 6.48), math.radians(17.667729), math.radians(28.295859)),
    Part.ArcOfCircle(Part.Circle(V(48.339684, 69.912977, 0), V(0, 0, 1), 0.72), math.radians(149.801339), math.radians(208.295859)),
    Part.LineSegment(V(47.717397, 70.275137, 0), V(48.720343, 71.998462, 0)),
    Part.LineSegment(V(48.720343, 71.998462, 0), V(47.384669, 73.31186, 0)),
    Part.LineSegment(V(47.384669, 73.31186, 0), V(45.678453, 72.280075, 0)),
    Part.ArcOfCircle(Part.Circle(V(45.30588, 72.896183, 0), V(0, 0, 1), 0.72), math.radians(-117.332271), math.radians(-58.837752)),
    Part.ArcOfCircle(Part.Circle(V(42, 66.5, 0), V(0, 0, 1), 6.48), math.radians(62.667729), math.radians(73.295859)),
    Part.ArcOfCircle(Part.Circle(V(44.069494, 73.396172, 0), V(0, 0, 1), 0.72), math.radians(-165.198661), math.radians(-106.704141)),
    Part.LineSegment(V(43.373386, 73.212235, 0), V(42.864, 75.14, 0)),
    Part.LineSegment(V(42.864, 75.14, 0), V(40.990823, 75.124248, 0)),
    Part.LineSegment(V(40.990823, 75.124248, 0), V(40.513929, 73.18819, 0)),
    Part.ArcOfCircle(Part.Circle(V(39.814826, 73.360395, 0), V(0, 0, 1), 0.72), math.radians(-72.332271), math.radians(-13.837752)),
    Part.ArcOfCircle(Part.Circle(V(42, 66.5, 0), V(0, 0, 1), 6.48), math.radians(107.667729), math.radians(118.295859)),
    Part.ArcOfCircle(Part.Circle(V(38.587023, 72.839684, 0), V(0, 0, 1), 0.72), math.radians(-120.198661), math.radians(-61.704141)),
    Part.LineSegment(V(38.224863, 72.217397, 0), V(36.501538, 73.220343, 0)),
], False)
sketch10.addConstraint([
    Sketcher.Constraint("Coincident", 0, 2, 1, 1),
    Sketcher.Constraint("Tangent", 1, 2, 2, 2),
    Sketcher.Constraint("Tangent", 2, 1, 3, 1),
    Sketcher.Constraint("Tangent", 3, 2, 4, 1),
    Sketcher.Constraint("Tangent", 4, 2, 5, 1),
    Sketcher.Constraint("Coincident", 5, 2, 6, 2),
    Sketcher.Constraint("Coincident", 6, 1, 7, 1),
    Sketcher.Constraint("Tangent", 7, 2, 8, 1),
    Sketcher.Constraint("Tangent", 8, 2, 9, 1),
    Sketcher.Constraint("Tangent", 9, 2, 10, 2),
    Sketcher.Constraint("Tangent", 10, 1, 11, 1),
    Sketcher.Constraint("Coincident", 11, 2, 12, 1),
    Sketcher.Constraint("Coincident", 12, 2, 13, 1),
    Sketcher.Constraint("Tangent", 13, 2, 14, 2),
    Sketcher.Constraint("Tangent", 14, 1, 15, 1),
    Sketcher.Constraint("Tangent", 15, 2, 16, 2),
    Sketcher.Constraint("Tangent", 16, 1, 17, 1),
    Sketcher.Constraint("Coincident", 17, 2, 18, 1),
    Sketcher.Constraint("Coincident", 18, 2, 19, 1),
    Sketcher.Constraint("Tangent", 19, 2, 20, 2),
    Sketcher.Constraint("Tangent", 20, 1, 21, 1),
    Sketcher.Constraint("Tangent", 21, 2, 22, 2),
    Sketcher.Constraint("Tangent", 22, 1, 23, 1),
    Sketcher.Constraint("Coincident", 23, 2, 24, 1),
    Sketcher.Constraint("Coincident", 24, 2, 25, 1),
    Sketcher.Constraint("Tangent", 25, 2, 26, 2),
    Sketcher.Constraint("Tangent", 26, 1, 27, 1),
    Sketcher.Constraint("Tangent", 27, 2, 28, 2),
    Sketcher.Constraint("Tangent", 28, 1, 29, 1),
    Sketcher.Constraint("Coincident", 29, 2, 30, 1),
    Sketcher.Constraint("Coincident", 30, 2, 31, 1),
    Sketcher.Constraint("Tangent", 31, 2, 32, 2),
    Sketcher.Constraint("Tangent", 32, 1, 33, 1),
    Sketcher.Constraint("Tangent", 33, 2, 34, 2),
    Sketcher.Constraint("Tangent", 34, 1, 35, 1),
    Sketcher.Constraint("Coincident", 35, 2, 36, 1),
    Sketcher.Constraint("Coincident", 36, 2, 37, 1),
    Sketcher.Constraint("Tangent", 37, 2, 38, 2),
    Sketcher.Constraint("Tangent", 38, 1, 39, 1),
    Sketcher.Constraint("Tangent", 39, 2, 40, 2),
    Sketcher.Constraint("Tangent", 40, 1, 41, 1),
    Sketcher.Constraint("Coincident", 41, 2, 42, 1),
    Sketcher.Constraint("Coincident", 42, 2, 43, 1),
    Sketcher.Constraint("Tangent", 43, 2, 44, 2),
    Sketcher.Constraint("Tangent", 44, 1, 45, 1),
    Sketcher.Constraint("Tangent", 45, 2, 46, 2),
    Sketcher.Constraint("Tangent", 46, 1, 47, 1),
    Sketcher.Constraint("Coincident", 47, 2, 0, 1),
    Sketcher.Constraint("Coincident", 6, 3, 3, 3),
    Sketcher.Constraint("Coincident", 9, 3, 3, 3),
    Sketcher.Constraint("Coincident", 15, 3, 3, 3),
    Sketcher.Constraint("Coincident", 21, 3, 3, 3),
    Sketcher.Constraint("Coincident", 27, 3, 3, 3),
    Sketcher.Constraint("Coincident", 33, 3, 3, 3),
    Sketcher.Constraint("Coincident", 39, 3, 3, 3),
    Sketcher.Constraint("Coincident", 45, 3, 3, 3),
    Sketcher.Constraint("Equal", 4, 8),
    Sketcher.Constraint("Equal", 3, 9),
    Sketcher.Constraint("Equal", 2, 10),
    Sketcher.Constraint("Equal", 10, 14),
    Sketcher.Constraint("Equal", 9, 15),
    Sketcher.Constraint("Equal", 14, 16),
    Sketcher.Constraint("Equal", 16, 20),
    Sketcher.Constraint("Equal", 15, 21),
    Sketcher.Constraint("Equal", 20, 22),
    Sketcher.Constraint("Equal", 22, 26),
    Sketcher.Constraint("Equal", 21, 27),
    Sketcher.Constraint("Equal", 26, 28),
    Sketcher.Constraint("Equal", 28, 32),
    Sketcher.Constraint("Equal", 27, 33),
    Sketcher.Constraint("Equal", 32, 34),
    Sketcher.Constraint("Equal", 34, 38),
    Sketcher.Constraint("Equal", 33, 39),
    Sketcher.Constraint("Equal", 38, 40),
    Sketcher.Constraint("Equal", 40, 44),
    Sketcher.Constraint("Equal", 39, 45),
    Sketcher.Constraint("Equal", 44, 46),
    Sketcher.Constraint("Perpendicular", 0, 12),
    Sketcher.Constraint("Perpendicular", 1, 13),
    Sketcher.Constraint("Perpendicular", 11, 23),
    Sketcher.Constraint("Perpendicular", 12, 24),
    Sketcher.Constraint("Perpendicular", 13, 25),
    Sketcher.Constraint("Perpendicular", 17, 29),
    Sketcher.Constraint("Perpendicular", 18, 30),
    Sketcher.Constraint("Perpendicular", 19, 31),
    Sketcher.Constraint("Perpendicular", 23, 35),
    Sketcher.Constraint("Perpendicular", 24, 36),
    Sketcher.Constraint("Perpendicular", 25, 37),
    Sketcher.Constraint("Perpendicular", 29, 41),
    Sketcher.Constraint("Perpendicular", 30, 42),
    Sketcher.Constraint("Perpendicular", 31, 43),
    Sketcher.Constraint("Perpendicular", 35, 47),
    Sketcher.Constraint("Equal", 1, 11),
    Sketcher.Constraint("Equal", 0, 12),
    Sketcher.Constraint("Equal", 11, 13),
    Sketcher.Constraint("Equal", 13, 17),
    Sketcher.Constraint("Equal", 12, 18),
    Sketcher.Constraint("Equal", 17, 19),
    Sketcher.Constraint("Equal", 19, 23),
    Sketcher.Constraint("Equal", 18, 24),
    Sketcher.Constraint("Equal", 23, 25),
    Sketcher.Constraint("Equal", 25, 29),
    Sketcher.Constraint("Equal", 24, 30),
    Sketcher.Constraint("Equal", 29, 31),
    Sketcher.Constraint("Equal", 31, 35),
    Sketcher.Constraint("Equal", 30, 36),
    Sketcher.Constraint("Equal", 35, 37),
    Sketcher.Constraint("Equal", 37, 41),
    Sketcher.Constraint("Equal", 36, 42),
    Sketcher.Constraint("Equal", 41, 43),
    Sketcher.Constraint("Equal", 43, 47),
    Sketcher.Constraint("Radius", 2, Q("0.72 mm")),
    Sketcher.Constraint("Radius", 3, Q("6.480001 mm")),
    Sketcher.Constraint("DistanceX", -1, 1, 3, 3, Q("42.000001 mm")),
    Sketcher.Constraint("DistanceY", -1, 1, 3, 3, Q("66.499999 mm")),
    Sketcher.Constraint("Radius", 4, Q("0.1351 mm")),
    Sketcher.Constraint("DistanceY", -1, 1, 17, 2, Q("57.86 mm")),
    Sketcher.Constraint("DistanceX", -1, 1, 17, 2, Q("41.136 mm")),
    Sketcher.Constraint("Radius", 6, Q("3.051668 mm")),
    Sketcher.Constraint("Distance", 7, Q("3.3225 mm")),
    Sketcher.Constraint("Distance", 1, Q("1.993929 mm")),
    Sketcher.Constraint("DistanceY", -1, 1, 2, 3, Q("69.80588 mm")),
    Sketcher.Constraint("DistanceX", -1, 1, 0, 2, Q("35.18814 mm")),
    Sketcher.Constraint("DistanceX", -1, 1, 8, 2, Q("36.127008 mm")),
    Sketcher.Constraint("DistanceY", -1, 1, 9, 2, Q("63.428321 mm")),
    Sketcher.Constraint("DistanceY", -1, 1, 18, 2, Q("57.875752 mm")),
    Sketcher.Constraint("DistanceX", -1, 1, 19, 2, Q("43.486071 mm")),
    Sketcher.Constraint("Distance", 5, Q("3.344253 mm")),
    Sketcher.Constraint("DistanceX", -1, 1, 4, 3, Q("36.204693 mm")),
])
pocket8 = body.newObject("PartDesign::Pocket", "Pocket007")
pocket8.Profile = sketch10
pocket8.Type = "ThroughAll"
pocket8.Reversed = True

sketch11 = body.newObject("Sketcher::SketchObject", "Sketch010")
sketch11.AttachmentSupport = (doc.getObject("XY_Plane"), [""])
sketch11.MapMode = "FlatFace"
sketch11.AttachmentOffset = App.Placement(V(0, 0, 5), App.Rotation())
add_polygon(sketch11, [(5, 83.517994), (2.38634, 82.008997), (2.38634, 78.991003), (5, 77.482006), (7.61366, 78.991003), (7.61366, 82.008997)])
add_polygon(sketch11, [(29, 83.964102), (26, 82.232051), (26, 78.767949), (29, 77.035898), (32, 78.767949), (32, 82.232051)])
add_polygon(sketch11, [(55, 83.964102), (52, 82.232051), (52, 78.767949), (55, 77.035898), (58, 78.767949), (58, 82.232051)])
add_polygon(sketch11, [(79, 83.964102), (76, 82.232051), (76, 78.767949), (79, 77.035898), (82, 78.767949), (82, 82.232051)])
add_polygon(sketch11, [(55, 55.964102), (52, 54.232051), (52, 50.767949), (55, 49.035898), (58, 50.767949), (58, 54.232051)])
add_polygon(sketch11, [(29, 55.964102), (26, 54.232051), (26, 50.767949), (29, 49.035898), (32, 50.767949), (32, 54.232051)])
add_polygon(sketch11, [(5, 55.964102), (2, 54.232051), (2, 50.767949), (5, 49.035898), (8, 50.767949), (8, 54.232051)])
add_polygon(sketch11, [(79, 55.964102), (76, 54.232051), (76, 50.767949), (79, 49.035898), (82, 50.767949), (82, 54.232051)])
sketch11.addConstraint([
    Sketcher.Constraint("Vertical", 1),
    Sketcher.Constraint("Vertical", 4),
    Sketcher.Constraint("Vertical", 7),
    Sketcher.Constraint("Vertical", 10),
    Sketcher.Constraint("Vertical", 13),
    Sketcher.Constraint("Vertical", 16),
    Sketcher.Constraint("Vertical", 19),
    Sketcher.Constraint("Vertical", 22),
    Sketcher.Constraint("Vertical", 25),
    Sketcher.Constraint("Vertical", 28),
    Sketcher.Constraint("Vertical", 31),
    Sketcher.Constraint("Vertical", 34),
    Sketcher.Constraint("Vertical", 37),
    Sketcher.Constraint("Vertical", 40),
    Sketcher.Constraint("Vertical", 43),
    Sketcher.Constraint("Vertical", 46),
    Sketcher.Constraint("Parallel", 0, 3),
    Sketcher.Constraint("Parallel", 2, 5),
    Sketcher.Constraint("Parallel", 3, 6),
    Sketcher.Constraint("Parallel", 5, 8),
    Sketcher.Constraint("Parallel", 6, 9),
    Sketcher.Constraint("Parallel", 8, 11),
    Sketcher.Constraint("Parallel", 9, 12),
    Sketcher.Constraint("Parallel", 11, 14),
    Sketcher.Constraint("Parallel", 12, 15),
    Sketcher.Constraint("Parallel", 14, 17),
    Sketcher.Constraint("Parallel", 15, 18),
    Sketcher.Constraint("Parallel", 17, 20),
    Sketcher.Constraint("Parallel", 18, 21),
    Sketcher.Constraint("Parallel", 20, 23),
    Sketcher.Constraint("Parallel", 21, 24),
    Sketcher.Constraint("Parallel", 23, 26),
    Sketcher.Constraint("Parallel", 24, 27),
    Sketcher.Constraint("Parallel", 26, 29),
    Sketcher.Constraint("Parallel", 27, 30),
    Sketcher.Constraint("Parallel", 29, 32),
    Sketcher.Constraint("Parallel", 30, 33),
    Sketcher.Constraint("Parallel", 32, 35),
    Sketcher.Constraint("Parallel", 33, 36),
    Sketcher.Constraint("Parallel", 35, 38),
    Sketcher.Constraint("Parallel", 36, 39),
    Sketcher.Constraint("Parallel", 38, 41),
    Sketcher.Constraint("Parallel", 39, 42),
    Sketcher.Constraint("Parallel", 41, 44),
    Sketcher.Constraint("Parallel", 42, 45),
    Sketcher.Constraint("Parallel", 44, 47),
    Sketcher.Constraint("Horizontal", 1, 2, 3, 2),
    Sketcher.Constraint("Horizontal", 0, 2, 4, 2),
    Sketcher.Constraint("Horizontal", 7, 2, 9, 2),
    Sketcher.Constraint("Horizontal", 6, 2, 10, 2),
    Sketcher.Constraint("Horizontal", 10, 2, 12, 2),
    Sketcher.Constraint("Horizontal", 9, 2, 13, 2),
    Sketcher.Constraint("Horizontal", 8, 2, 14, 2),
    Sketcher.Constraint("Horizontal", 13, 2, 15, 2),
    Sketcher.Constraint("Horizontal", 12, 2, 16, 2),
    Sketcher.Constraint("Horizontal", 16, 2, 18, 2),
    Sketcher.Constraint("Horizontal", 15, 2, 19, 2),
    Sketcher.Constraint("Horizontal", 14, 2, 20, 2),
    Sketcher.Constraint("Horizontal", 19, 2, 21, 2),
    Sketcher.Constraint("Horizontal", 18, 2, 22, 2),
    Sketcher.Constraint("Horizontal", 25, 2, 27, 2),
    Sketcher.Constraint("Horizontal", 24, 2, 28, 2),
    Sketcher.Constraint("Horizontal", 28, 2, 30, 2),
    Sketcher.Constraint("Horizontal", 27, 2, 31, 2),
    Sketcher.Constraint("Horizontal", 26, 2, 32, 2),
    Sketcher.Constraint("Horizontal", 31, 2, 33, 2),
    Sketcher.Constraint("Horizontal", 30, 2, 34, 2),
    Sketcher.Constraint("Horizontal", 34, 2, 36, 2),
    Sketcher.Constraint("Horizontal", 33, 2, 37, 2),
    Sketcher.Constraint("Horizontal", 32, 2, 38, 2),
    Sketcher.Constraint("Horizontal", 37, 2, 39, 2),
    Sketcher.Constraint("Horizontal", 36, 2, 40, 2),
    Sketcher.Constraint("Horizontal", 40, 2, 42, 2),
    Sketcher.Constraint("Horizontal", 39, 2, 43, 2),
    Sketcher.Constraint("Horizontal", 38, 2, 44, 2),
    Sketcher.Constraint("Horizontal", 43, 2, 45, 2),
    Sketcher.Constraint("Horizontal", 42, 2, 46, 2),
    Sketcher.Constraint("Vertical", 2, 2, 5, 2),
    Sketcher.Constraint("Vertical", 13, 2, 24, 2),
    Sketcher.Constraint("Vertical", 17, 2, 26, 2),
    Sketcher.Constraint("Vertical", 7, 2, 30, 2),
    Sketcher.Constraint("Vertical", 5, 2, 38, 2),
    Sketcher.Constraint("Vertical", 19, 2, 42, 2),
    Sketcher.Constraint("Equal", 22, 25),
    Sketcher.Constraint("Angle", 0, Q("-150 deg")),
    Sketcher.Constraint("DistanceX", -1, 1, 2, 2, Q("5 mm")),
    Sketcher.Constraint("DistanceX", -1, 1, 6, 2, Q("26 mm")),
    Sketcher.Constraint("DistanceX", -1, 1, 8, 2, Q("29 mm")),
    Sketcher.Constraint("DistanceX", -1, 1, 12, 2, Q("52 mm")),
    Sketcher.Constraint("DistanceX", -1, 1, 18, 2, Q("76 mm")),
    Sketcher.Constraint("DistanceY", 24, 2, 12, 2, Q("28 mm")),
    Sketcher.Constraint("DistanceY", 7, 2, 7, 1, Q("3.464102 mm")),
    Sketcher.Constraint("DistanceY", -1, 1, 8, 2, Q("77.035898 mm")),
    Sketcher.Constraint("DistanceY", 8, 2, 4, 2, Q("4.973099 mm")),
    Sketcher.Constraint("DistanceY", 1, 2, 1, 1, Q("3.017994 mm")),
    Sketcher.Constraint("DistanceX", -1, 1, 0, 2, Q("2.38634 mm")),
])
pocket9 = body.newObject("PartDesign::Pocket", "Pocket008")
pocket9.Profile = sketch11
pocket9.Length = 3

doc.recompute()
